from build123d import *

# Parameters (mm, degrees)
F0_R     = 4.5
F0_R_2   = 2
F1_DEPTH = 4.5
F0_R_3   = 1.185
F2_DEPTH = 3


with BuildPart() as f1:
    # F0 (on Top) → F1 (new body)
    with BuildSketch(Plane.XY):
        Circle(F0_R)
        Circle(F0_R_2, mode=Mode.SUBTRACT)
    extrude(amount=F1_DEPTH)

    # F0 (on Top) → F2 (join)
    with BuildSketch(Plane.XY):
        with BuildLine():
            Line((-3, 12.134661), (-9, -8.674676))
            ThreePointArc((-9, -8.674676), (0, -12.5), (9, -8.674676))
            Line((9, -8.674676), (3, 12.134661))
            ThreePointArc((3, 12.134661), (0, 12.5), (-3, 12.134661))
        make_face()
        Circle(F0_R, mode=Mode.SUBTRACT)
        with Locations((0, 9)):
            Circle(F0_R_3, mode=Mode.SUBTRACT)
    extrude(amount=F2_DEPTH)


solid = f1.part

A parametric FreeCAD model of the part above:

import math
import FreeCAD as App
import Part
import Sketcher

doc = App.newDocument("Part")
params = doc.addObject("Spreadsheet::Sheet", "Params")
for row, (alias, value) in enumerate([
    ("sketch1_diameter", "9 mm"),
    ("sketch1_diameter2", "4 mm"),
    ("pad1_length", "4.5 mm"),
    ("sketch2_diameter", "9 mm"),
    ("sketch2_radius", "12.5 mm"),
    ("sketch2_diameter2", "2.37 mm"),
    ("pad2_length", "3 mm"),
], start=1):
    params.set(f"A{row}", alias)
    params.set(f"B{row}", "=" + value)
    params.setAlias(f"B{row}", alias)

body = doc.addObject("PartDesign::Body", "Body")

# Sketch on XY plane
sketch1 = body.newObject("Sketcher::SketchObject", "Sketch")
sketch1.AttachmentSupport = (doc.getObject("XY_Plane"), [""])
sketch1.MapMode = "FlatFace"
sketch1.addGeometry(Part.Circle(App.Vector(0, 0, 0), App.Vector(0, 0, 1), 4.5), False)
sketch1.addGeometry(Part.Circle(App.Vector(0, 0, 0), App.Vector(0, 0, 1), 2), False)
sketch1.addConstraint(Sketcher.Constraint("Coincident", 0, 3, -1, 1))
sketch1.addConstraint(Sketcher.Constraint("Coincident", 1, 3, -1, 1))
sketch1.addConstraint(Sketcher.Constraint("Diameter", 0, 9.0))
sketch1.addConstraint(Sketcher.Constraint("Diameter", 1, 4.0))
sketch1.setExpression("Constraints[2]", "Params.sketch1_diameter")
sketch1.setExpression("Constraints[3]", "Params.sketch1_diameter2")
pad1 = body.newObject("PartDesign::Pad", "Pad")
pad1.Profile = sketch1
pad1.setExpression("Length", "Params.pad1_length")

# Sketch on XY plane
sketch2 = body.newObject("Sketcher::SketchObject", "Sketch001")
sketch2.AttachmentSupport = (doc.getObject("XY_Plane"), [""])
sketch2.MapMode = "FlatFace"
sketch2.addGeometry(Part.LineSegment(App.Vector(-3, 12.1, 0), App.Vector(-9, -8.7, 0)), False)
sketch2.addGeometry(Part.ArcOfCircle(Part.Circle(App.Vector(0, 0, 0), App.Vector(0, 0, 1), 12.5), math.radians(-136), math.radians(-44)), False)
sketch2.addGeometry(Part.LineSegment(App.Vector(9, -8.7, 0), App.Vector(3, 12.1, 0)), False)
sketch2.addGeometry(Part.ArcOfCircle(Part.Circle(App.Vector(0, 0, 0), App.Vector(0, 0, 1), 12.5), math.radians(76), math.radians(104)), False)
sketch2.addGeometry(Part.Circle(App.Vector(0, 0, 0), App.Vector(0, 0, 1), 4.5), False)
sketch2.addGeometry(Part.Circle(App.Vector(0, 9, 0), App.Vector(0, 0, 1), 1.2), False)
sketch2.addConstraint(Sketcher.Constraint("Coincident", 0, 2, 1, 1))
sketch2.addConstraint(Sketcher.Constraint("Coincident", 1, 2, 2, 1))
sketch2.addConstraint(Sketcher.Constraint("Coincident", 2, 2, 3, 1))
sketch2.addConstraint(Sketcher.Constraint("Coincident", 3, 2, 0, 1))
sketch2.addConstraint(Sketcher.Constraint("Coincident", 1, 3, -1, 1))
sketch2.addConstraint(Sketcher.Constraint("Coincident", 3, 3, -1, 1))
sketch2.addConstraint(Sketcher.Constraint("Coincident", 4, 3, -1, 1))
sketch2.addConstraint(Sketcher.Constraint("PointOnObject", 5, 3, -2))
sketch2.addConstraint(Sketcher.Constraint("Horizontal", 0, 2, 1, 2))
sketch2.addConstraint(Sketcher.Constraint("Horizontal", 2, 2, 3, 2))
sketch2.addConstraint(Sketcher.Constraint("Diameter", 4, 9.0))
sketch2.addConstraint(Sketcher.Constraint("Radius", 1, 12.5))
sketch2.addConstraint(Sketcher.Constraint("Diameter", 5, 2.37))
sketch2.addConstraint(Sketcher.Constraint("DistanceY", -1, 1, 5, 3, 9.0))
sketch2.addConstraint(Sketcher.Constraint("DistanceX", 0, 2, -1, 1, 9.0))
sketch2.addConstraint(Sketcher.Constraint("DistanceX", -1, 1, 2, 2, 3.0))
sketch2.addConstraint(Sketcher.Constraint("Radius", 3, 12.499997))
sketch2.setExpression("Constraints[10]", "Params.sketch2_diameter")
sketch2.setExpression("Constraints[11]", "Params.sketch2_radius")
sketch2.setExpression("Constraints[12]", "Params.sketch2_diameter2")
pad2 = body.newObject("PartDesign::Pad", "Pad001")
pad2.Profile = sketch2
pad2.setExpression("Length", "Params.pad2_length")

doc.recompute()
